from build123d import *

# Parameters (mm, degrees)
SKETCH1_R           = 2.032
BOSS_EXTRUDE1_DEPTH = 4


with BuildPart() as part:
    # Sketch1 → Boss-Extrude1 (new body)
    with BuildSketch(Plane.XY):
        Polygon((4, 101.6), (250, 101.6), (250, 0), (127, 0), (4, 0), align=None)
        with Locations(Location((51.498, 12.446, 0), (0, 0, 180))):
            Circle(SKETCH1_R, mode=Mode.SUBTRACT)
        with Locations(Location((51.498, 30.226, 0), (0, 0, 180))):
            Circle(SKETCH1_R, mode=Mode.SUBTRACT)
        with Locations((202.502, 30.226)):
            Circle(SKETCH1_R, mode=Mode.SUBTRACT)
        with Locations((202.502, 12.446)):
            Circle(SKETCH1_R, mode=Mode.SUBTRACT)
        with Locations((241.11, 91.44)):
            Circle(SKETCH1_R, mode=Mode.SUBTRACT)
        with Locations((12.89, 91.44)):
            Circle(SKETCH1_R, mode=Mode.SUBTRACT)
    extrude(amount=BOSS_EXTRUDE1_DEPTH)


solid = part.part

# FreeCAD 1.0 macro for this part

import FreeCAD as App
import Part
import Sketcher
from FreeCAD import Vector


def add_polygon(sketch, points):
    """Adds a closed chain of lines whose ends are joined by coincident constraints."""
    first, n = sketch.GeometryCount, len(points)
    for a, b in zip(points, points[1:] + points[:1]):
        sketch.addGeometry(Part.LineSegment(App.Vector(*a, 0), App.Vector(*b, 0)), False)
    for i in range(n):
        sketch.addConstraint(Sketcher.Constraint("Coincident", first + i, 2, first + (i + 1) % n, 1))

doc = App.newDocument("Part")
body = doc.addObject("PartDesign::Body", "Body")

sketch1 = doc.addObject("Sketcher::SketchObject", "Sketch")
body.addObject(sketch1)
sketch1.AttachmentSupport = (doc.XY_Plane, [""])
sketch1.MapMode = "FlatFace"
add_polygon(sketch1, [(250, 101.6), (4, 101.6), (4, 0), (250, 0)])
sketch1.addGeometry(Part.Circle(Vector(202.5, 12.4, 0), Vector(0, 0, 1), 2), False)
sketch1.addGeometry(Part.Circle(Vector(202.5, 30.2, 0), Vector(0, 0, 1), 2), False)
sketch1.addGeometry(Part.Circle(Vector(51.5, 12.4, 0), Vector(0, 0, 1), 2), False)
sketch1.addGeometry(Part.Circle(Vector(51.5, 30.2, 0), Vector(0, 0, 1), 2), False)
sketch1.addGeometry(Part.Circle(Vector(241.1, 91.4, 0), Vector(0, 0, 1), 2), False)
sketch1.addGeometry(Part.Circle(Vector(12.9, 91.4, 0), Vector(0, 0, 1), 2), False)
sketch1.addConstraint(Sketcher.Constraint("Horizontal", 0))
sketch1.addConstraint(Sketcher.Constraint("Vertical", 1))
sketch1.addConstraint(Sketcher.Constraint("Horizontal", 2))
sketch1.addConstraint(Sketcher.Constraint("Vertical", 3))
sketch1.addConstraint(Sketcher.Constraint("Equal", 4, 5))
sketch1.addConstraint(Sketcher.Constraint("Equal", 5, 6))
sketch1.addConstraint(Sketcher.Constraint("Equal", 6, 7))
sketch1.addConstraint(Sketcher.Constraint("Equal", 7, 8))
sketch1.addConstraint(Sketcher.Constraint("Equal", 8, 9))
sketch1.addConstraint(Sketcher.Constraint("PointOnObject", 1, 2, -1))
sketch1.addConstraint(Sketcher.Constraint("Horizontal", 4, 3, 6, 3))
sketch1.addConstraint(Sketcher.Constraint("Horizontal", 5, 3, 7, 3))
sketch1.addConstraint(Sketcher.Constraint("Horizontal", 8, 3, 9, 3))
sketch1.addConstraint(Sketcher.Constraint("Vertical", 4, 3, 5, 3))
sketch1.addConstraint(Sketcher.Constraint("Vertical", 6, 3, 7, 3))
sketch1.addConstraint(Sketcher.Constraint("DistanceX", 0, 2, 0, 1, 246.0))
sketch1.addConstraint(Sketcher.Constraint("Diameter", 4, 4.064))
sketch1.addConstraint(Sketcher.Constraint("DistanceY", 1, 2, 1, 1, 101.6))
sketch1.addConstraint(Sketcher.Constraint("DistanceX", -1, 1, 0, 2, 4.0))
sketch1.addConstraint(Sketcher.Constraint("DistanceX", -1, 1, 8, 3, 241.11))
sketch1.addConstraint(Sketcher.Constraint("DistanceY", -1, 1, 8, 3, 91.44))
sketch1.addConstraint(Sketcher.Constraint("DistanceX", -1, 1, 9, 3, 12.89))
sketch1.addConstraint(Sketcher.Constraint("DistanceY", 4, 3, 5, 3, 17.78))
sketch1.addConstraint(Sketcher.Constraint("DistanceX", -1, 1, 4, 3, 202.502))
sketch1.addConstraint(Sketcher.Constraint("DistanceY", -1, 1, 4, 3, 12.446))
sketch1.addConstraint(Sketcher.Constraint("DistanceX", -1, 1, 6, 3, 51.498))
pad1 = doc.addObject("PartDesign::Pad", "Pad")
body.addObject(pad1)
pad1.Profile = sketch1
pad1.Length = 4

doc.recompute()
